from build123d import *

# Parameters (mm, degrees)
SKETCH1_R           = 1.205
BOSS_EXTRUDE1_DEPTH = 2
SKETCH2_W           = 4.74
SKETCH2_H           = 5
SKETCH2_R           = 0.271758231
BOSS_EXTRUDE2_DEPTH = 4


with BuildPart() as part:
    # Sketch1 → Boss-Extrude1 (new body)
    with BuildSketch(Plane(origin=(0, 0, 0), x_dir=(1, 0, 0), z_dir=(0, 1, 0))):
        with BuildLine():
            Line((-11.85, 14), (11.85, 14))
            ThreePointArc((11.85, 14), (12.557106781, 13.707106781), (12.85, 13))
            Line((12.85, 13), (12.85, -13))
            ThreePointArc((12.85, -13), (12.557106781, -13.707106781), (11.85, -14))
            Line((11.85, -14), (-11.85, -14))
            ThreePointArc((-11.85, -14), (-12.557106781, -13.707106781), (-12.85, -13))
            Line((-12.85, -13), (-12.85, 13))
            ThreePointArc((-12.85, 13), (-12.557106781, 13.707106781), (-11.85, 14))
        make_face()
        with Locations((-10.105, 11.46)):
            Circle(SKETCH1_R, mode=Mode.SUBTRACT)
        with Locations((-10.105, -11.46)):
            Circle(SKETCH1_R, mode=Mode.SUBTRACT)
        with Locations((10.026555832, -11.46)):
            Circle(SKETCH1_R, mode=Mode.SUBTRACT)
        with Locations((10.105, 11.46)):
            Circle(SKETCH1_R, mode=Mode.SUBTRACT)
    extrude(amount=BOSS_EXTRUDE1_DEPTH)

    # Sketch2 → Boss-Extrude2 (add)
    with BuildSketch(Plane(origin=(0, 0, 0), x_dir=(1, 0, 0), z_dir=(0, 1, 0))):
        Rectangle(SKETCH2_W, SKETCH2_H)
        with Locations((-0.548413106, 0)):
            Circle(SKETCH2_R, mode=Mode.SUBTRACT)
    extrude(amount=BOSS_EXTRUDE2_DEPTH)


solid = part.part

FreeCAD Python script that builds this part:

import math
import FreeCAD as App
import Part
import Sketcher
from FreeCAD import Vector
Q = App.Units.Quantity

doc = App.newDocument("Part")
body = doc.addObject("PartDesign::Body", "Body")

sketch1 = body.newObject("Sketcher::SketchObject", "Sketch")
sketch1.AttachmentSupport = (doc.getObject("XZ_Plane"), [""])
sketch1.MapMode = "FlatFace"
sketch1.addGeometry(Part.LineSegment(Vector(11.8, -14, 0), Vector(-11.8, -14, 0)), False)
sketch1.addGeometry(Part.ArcOfCircle(Part.Circle(Vector(-11.8, -13, 0), Vector(0, 0, 1), 1), math.radians(-180), math.radians(-90)), False)
sketch1.addGeometry(Part.LineSegment(Vector(-12.8, -13, 0), Vector(-12.8, 13, 0)), False)
sketch1.addGeometry(Part.ArcOfCircle(Part.Circle(Vector(-11.8, 13, 0), Vector(0, 0, 1), 1), math.radians(90), math.radians(180)), False)
sketch1.addGeometry(Part.LineSegment(Vector(-11.8, 14, 0), Vector(11.8, 14, 0)), False)
sketch1.addGeometry(Part.ArcOfCircle(Part.Circle(Vector(11.8, 13, 0), Vector(0, 0, 1), 1), math.radians(0), math.radians(90)), False)
sketch1.addGeometry(Part.LineSegment(Vector(12.8, 13, 0), Vector(12.8, -13, 0)), False)
sketch1.addGeometry(Part.ArcOfCircle(Part.Circle(Vector(11.8, -13, 0), Vector(0, 0, 1), 1), math.radians(-90), math.radians(0)), False)
sketch1.addGeometry(Part.Circle(Vector(10, 11.5, 0), Vector(0, 0, 1), 1.2), False)
sketch1.addGeometry(Part.Circle(Vector(-10.1, 11.5, 0), Vector(0, 0, 1), 1.2), False)
sketch1.addGeometry(Part.Circle(Vector(10.1, -11.5, 0), Vector(0, 0, 1), 1.2), False)
sketch1.addGeometry(Part.Circle(Vector(-10.1, -11.5, 0), Vector(0, 0, 1), 1.2), False)
sketch1.addConstraint(Sketcher.Constraint("Tangent", 0, 2, 1, 2))
sketch1.addConstraint(Sketcher.Constraint("Tangent", 1, 1, 2, 1))
sketch1.addConstraint(Sketcher.Constraint("Tangent", 2, 2, 3, 2))
sketch1.addConstraint(Sketcher.Constraint("Tangent", 3, 1, 4, 1))
sketch1.addConstraint(Sketcher.Constraint("Tangent", 4, 2, 5, 2))
sketch1.addConstraint(Sketcher.Constraint("Tangent", 5, 1, 6, 1))
sketch1.addConstraint(Sketcher.Constraint("Tangent", 6, 2, 7, 2))
sketch1.addConstraint(Sketcher.Constraint("Tangent", 7, 1, 0, 1))
sketch1.addConstraint(Sketcher.Constraint("Horizontal", 0))
sketch1.addConstraint(Sketcher.Constraint("Vertical", 2))
sketch1.addConstraint(Sketcher.Constraint("Horizontal", 4))
sketch1.addConstraint(Sketcher.Constraint("Vertical", 6))
sketch1.addConstraint(Sketcher.Constraint("Equal", 1, 3))
sketch1.addConstraint(Sketcher.Constraint("Equal", 3, 5))
sketch1.addConstraint(Sketcher.Constraint("Equal", 5, 7))
sketch1.addConstraint(Sketcher.Constraint("Equal", 8, 9))
sketch1.addConstraint(Sketcher.Constraint("Equal", 9, 10))
sketch1.addConstraint(Sketcher.Constraint("Equal", 10, 11))
sketch1.addConstraint(Sketcher.Constraint("Symmetric", 1, 3, 5, 3, -1, 1))
sketch1.addConstraint(Sketcher.Constraint("Symmetric", 9, 3, 10, 3, -1, 1))
sketch1.addConstraint(Sketcher.Constraint("Symmetric", 10, 3, 11, 3, -2))
sketch1.addConstraint(Sketcher.Constraint("Horizontal", 8, 3, 9, 3))
sketch1.addConstraint(Sketcher.Constraint("Radius", 1, Q("1 mm")))
sketch1.addConstraint(Sketcher.Constraint("Diameter", 8, Q("2.41 mm")))
sketch1.addConstraint(Sketcher.Constraint("DistanceY", 2, 1, 2, 2, Q("26 mm")))
sketch1.addConstraint(Sketcher.Constraint("DistanceX", 0, 2, 0, 1, Q("23.7 mm")))
sketch1.addConstraint(Sketcher.Constraint("DistanceY", -1, 1, 8, 3, Q("11.46 mm")))
sketch1.addConstraint(Sketcher.Constraint("DistanceX", 9, 3, 10, 3, Q("20.21 mm")))
sketch1.addConstraint(Sketcher.Constraint("DistanceX", -1, 1, 8, 3, Q("10.026556 mm")))
pad1 = body.newObject("PartDesign::Pad", "Pad")
pad1.Profile = sketch1
pad1.Length = 2
pad1.Reversed = True

sketch2 = body.newObject("Sketcher::SketchObject", "Sketch001")
sketch2.AttachmentSupport = (doc.getObject("XZ_Plane"), [""])
sketch2.MapMode = "FlatFace"
sketch2.addGeometry(Part.LineSegment(Vector(-2.37, -2.5, 0), Vector(-2.37, 2.5, 0)), False)
sketch2.addGeometry(Part.LineSegment(Vector(-2.37, 2.5, 0), Vector(2.37, 2.5, 0)), False)
sketch2.addGeometry(Part.LineSegment(Vector(2.37, 2.5, 0), Vector(2.37, -2.5, 0)), False)
sketch2.addGeometry(Part.LineSegment(Vector(2.37, -2.5, 0), Vector(-2.37, -2.5, 0)), False)
sketch2.addGeometry(Part.Circle(Vector(-0.55, 0, 0), Vector(0, 0, 1), 0.27), False)
sketch2.addConstraint(Sketcher.Constraint("Coincident", 0, 2, 1, 1))
sketch2.addConstraint(Sketcher.Constraint("Coincident", 1, 2, 2, 1))
sketch2.addConstraint(Sketcher.Constraint("Coincident", 2, 2, 3, 1))
sketch2.addConstraint(Sketcher.Constraint("Coincident", 3, 2, 0, 1))
sketch2.addConstraint(Sketcher.Constraint("Vertical", 0))
sketch2.addConstraint(Sketcher.Constraint("Horizontal", 1))
sketch2.addConstraint(Sketcher.Constraint("Vertical", 2))
sketch2.addConstraint(Sketcher.Constraint("Horizontal", 3))
sketch2.addConstraint(Sketcher.Constraint("Symmetric", 0, 2, 2, 2, -1, 1))
sketch2.addConstraint(Sketcher.Constraint("PointOnObject", 4, 3, -1))
sketch2.addConstraint(Sketcher.Constraint("DistanceY", 0, 1, 0, 2, Q("5 mm")))
sketch2.addConstraint(Sketcher.Constraint("DistanceX", 1, 1, 1, 2, Q("4.74 mm")))
sketch2.addConstraint(Sketcher.Constraint("Diameter", 4, Q("0.543516 mm")))
sketch2.addConstraint(Sketcher.Constraint("DistanceX", 4, 3, -1, 1, Q("0.548413 mm")))
pad2 = body.newObject("PartDesign::Pad", "Pad001")
pad2.Profile = sketch2
pad2.Length = 4
pad2.Reversed = True

doc.recompute()
